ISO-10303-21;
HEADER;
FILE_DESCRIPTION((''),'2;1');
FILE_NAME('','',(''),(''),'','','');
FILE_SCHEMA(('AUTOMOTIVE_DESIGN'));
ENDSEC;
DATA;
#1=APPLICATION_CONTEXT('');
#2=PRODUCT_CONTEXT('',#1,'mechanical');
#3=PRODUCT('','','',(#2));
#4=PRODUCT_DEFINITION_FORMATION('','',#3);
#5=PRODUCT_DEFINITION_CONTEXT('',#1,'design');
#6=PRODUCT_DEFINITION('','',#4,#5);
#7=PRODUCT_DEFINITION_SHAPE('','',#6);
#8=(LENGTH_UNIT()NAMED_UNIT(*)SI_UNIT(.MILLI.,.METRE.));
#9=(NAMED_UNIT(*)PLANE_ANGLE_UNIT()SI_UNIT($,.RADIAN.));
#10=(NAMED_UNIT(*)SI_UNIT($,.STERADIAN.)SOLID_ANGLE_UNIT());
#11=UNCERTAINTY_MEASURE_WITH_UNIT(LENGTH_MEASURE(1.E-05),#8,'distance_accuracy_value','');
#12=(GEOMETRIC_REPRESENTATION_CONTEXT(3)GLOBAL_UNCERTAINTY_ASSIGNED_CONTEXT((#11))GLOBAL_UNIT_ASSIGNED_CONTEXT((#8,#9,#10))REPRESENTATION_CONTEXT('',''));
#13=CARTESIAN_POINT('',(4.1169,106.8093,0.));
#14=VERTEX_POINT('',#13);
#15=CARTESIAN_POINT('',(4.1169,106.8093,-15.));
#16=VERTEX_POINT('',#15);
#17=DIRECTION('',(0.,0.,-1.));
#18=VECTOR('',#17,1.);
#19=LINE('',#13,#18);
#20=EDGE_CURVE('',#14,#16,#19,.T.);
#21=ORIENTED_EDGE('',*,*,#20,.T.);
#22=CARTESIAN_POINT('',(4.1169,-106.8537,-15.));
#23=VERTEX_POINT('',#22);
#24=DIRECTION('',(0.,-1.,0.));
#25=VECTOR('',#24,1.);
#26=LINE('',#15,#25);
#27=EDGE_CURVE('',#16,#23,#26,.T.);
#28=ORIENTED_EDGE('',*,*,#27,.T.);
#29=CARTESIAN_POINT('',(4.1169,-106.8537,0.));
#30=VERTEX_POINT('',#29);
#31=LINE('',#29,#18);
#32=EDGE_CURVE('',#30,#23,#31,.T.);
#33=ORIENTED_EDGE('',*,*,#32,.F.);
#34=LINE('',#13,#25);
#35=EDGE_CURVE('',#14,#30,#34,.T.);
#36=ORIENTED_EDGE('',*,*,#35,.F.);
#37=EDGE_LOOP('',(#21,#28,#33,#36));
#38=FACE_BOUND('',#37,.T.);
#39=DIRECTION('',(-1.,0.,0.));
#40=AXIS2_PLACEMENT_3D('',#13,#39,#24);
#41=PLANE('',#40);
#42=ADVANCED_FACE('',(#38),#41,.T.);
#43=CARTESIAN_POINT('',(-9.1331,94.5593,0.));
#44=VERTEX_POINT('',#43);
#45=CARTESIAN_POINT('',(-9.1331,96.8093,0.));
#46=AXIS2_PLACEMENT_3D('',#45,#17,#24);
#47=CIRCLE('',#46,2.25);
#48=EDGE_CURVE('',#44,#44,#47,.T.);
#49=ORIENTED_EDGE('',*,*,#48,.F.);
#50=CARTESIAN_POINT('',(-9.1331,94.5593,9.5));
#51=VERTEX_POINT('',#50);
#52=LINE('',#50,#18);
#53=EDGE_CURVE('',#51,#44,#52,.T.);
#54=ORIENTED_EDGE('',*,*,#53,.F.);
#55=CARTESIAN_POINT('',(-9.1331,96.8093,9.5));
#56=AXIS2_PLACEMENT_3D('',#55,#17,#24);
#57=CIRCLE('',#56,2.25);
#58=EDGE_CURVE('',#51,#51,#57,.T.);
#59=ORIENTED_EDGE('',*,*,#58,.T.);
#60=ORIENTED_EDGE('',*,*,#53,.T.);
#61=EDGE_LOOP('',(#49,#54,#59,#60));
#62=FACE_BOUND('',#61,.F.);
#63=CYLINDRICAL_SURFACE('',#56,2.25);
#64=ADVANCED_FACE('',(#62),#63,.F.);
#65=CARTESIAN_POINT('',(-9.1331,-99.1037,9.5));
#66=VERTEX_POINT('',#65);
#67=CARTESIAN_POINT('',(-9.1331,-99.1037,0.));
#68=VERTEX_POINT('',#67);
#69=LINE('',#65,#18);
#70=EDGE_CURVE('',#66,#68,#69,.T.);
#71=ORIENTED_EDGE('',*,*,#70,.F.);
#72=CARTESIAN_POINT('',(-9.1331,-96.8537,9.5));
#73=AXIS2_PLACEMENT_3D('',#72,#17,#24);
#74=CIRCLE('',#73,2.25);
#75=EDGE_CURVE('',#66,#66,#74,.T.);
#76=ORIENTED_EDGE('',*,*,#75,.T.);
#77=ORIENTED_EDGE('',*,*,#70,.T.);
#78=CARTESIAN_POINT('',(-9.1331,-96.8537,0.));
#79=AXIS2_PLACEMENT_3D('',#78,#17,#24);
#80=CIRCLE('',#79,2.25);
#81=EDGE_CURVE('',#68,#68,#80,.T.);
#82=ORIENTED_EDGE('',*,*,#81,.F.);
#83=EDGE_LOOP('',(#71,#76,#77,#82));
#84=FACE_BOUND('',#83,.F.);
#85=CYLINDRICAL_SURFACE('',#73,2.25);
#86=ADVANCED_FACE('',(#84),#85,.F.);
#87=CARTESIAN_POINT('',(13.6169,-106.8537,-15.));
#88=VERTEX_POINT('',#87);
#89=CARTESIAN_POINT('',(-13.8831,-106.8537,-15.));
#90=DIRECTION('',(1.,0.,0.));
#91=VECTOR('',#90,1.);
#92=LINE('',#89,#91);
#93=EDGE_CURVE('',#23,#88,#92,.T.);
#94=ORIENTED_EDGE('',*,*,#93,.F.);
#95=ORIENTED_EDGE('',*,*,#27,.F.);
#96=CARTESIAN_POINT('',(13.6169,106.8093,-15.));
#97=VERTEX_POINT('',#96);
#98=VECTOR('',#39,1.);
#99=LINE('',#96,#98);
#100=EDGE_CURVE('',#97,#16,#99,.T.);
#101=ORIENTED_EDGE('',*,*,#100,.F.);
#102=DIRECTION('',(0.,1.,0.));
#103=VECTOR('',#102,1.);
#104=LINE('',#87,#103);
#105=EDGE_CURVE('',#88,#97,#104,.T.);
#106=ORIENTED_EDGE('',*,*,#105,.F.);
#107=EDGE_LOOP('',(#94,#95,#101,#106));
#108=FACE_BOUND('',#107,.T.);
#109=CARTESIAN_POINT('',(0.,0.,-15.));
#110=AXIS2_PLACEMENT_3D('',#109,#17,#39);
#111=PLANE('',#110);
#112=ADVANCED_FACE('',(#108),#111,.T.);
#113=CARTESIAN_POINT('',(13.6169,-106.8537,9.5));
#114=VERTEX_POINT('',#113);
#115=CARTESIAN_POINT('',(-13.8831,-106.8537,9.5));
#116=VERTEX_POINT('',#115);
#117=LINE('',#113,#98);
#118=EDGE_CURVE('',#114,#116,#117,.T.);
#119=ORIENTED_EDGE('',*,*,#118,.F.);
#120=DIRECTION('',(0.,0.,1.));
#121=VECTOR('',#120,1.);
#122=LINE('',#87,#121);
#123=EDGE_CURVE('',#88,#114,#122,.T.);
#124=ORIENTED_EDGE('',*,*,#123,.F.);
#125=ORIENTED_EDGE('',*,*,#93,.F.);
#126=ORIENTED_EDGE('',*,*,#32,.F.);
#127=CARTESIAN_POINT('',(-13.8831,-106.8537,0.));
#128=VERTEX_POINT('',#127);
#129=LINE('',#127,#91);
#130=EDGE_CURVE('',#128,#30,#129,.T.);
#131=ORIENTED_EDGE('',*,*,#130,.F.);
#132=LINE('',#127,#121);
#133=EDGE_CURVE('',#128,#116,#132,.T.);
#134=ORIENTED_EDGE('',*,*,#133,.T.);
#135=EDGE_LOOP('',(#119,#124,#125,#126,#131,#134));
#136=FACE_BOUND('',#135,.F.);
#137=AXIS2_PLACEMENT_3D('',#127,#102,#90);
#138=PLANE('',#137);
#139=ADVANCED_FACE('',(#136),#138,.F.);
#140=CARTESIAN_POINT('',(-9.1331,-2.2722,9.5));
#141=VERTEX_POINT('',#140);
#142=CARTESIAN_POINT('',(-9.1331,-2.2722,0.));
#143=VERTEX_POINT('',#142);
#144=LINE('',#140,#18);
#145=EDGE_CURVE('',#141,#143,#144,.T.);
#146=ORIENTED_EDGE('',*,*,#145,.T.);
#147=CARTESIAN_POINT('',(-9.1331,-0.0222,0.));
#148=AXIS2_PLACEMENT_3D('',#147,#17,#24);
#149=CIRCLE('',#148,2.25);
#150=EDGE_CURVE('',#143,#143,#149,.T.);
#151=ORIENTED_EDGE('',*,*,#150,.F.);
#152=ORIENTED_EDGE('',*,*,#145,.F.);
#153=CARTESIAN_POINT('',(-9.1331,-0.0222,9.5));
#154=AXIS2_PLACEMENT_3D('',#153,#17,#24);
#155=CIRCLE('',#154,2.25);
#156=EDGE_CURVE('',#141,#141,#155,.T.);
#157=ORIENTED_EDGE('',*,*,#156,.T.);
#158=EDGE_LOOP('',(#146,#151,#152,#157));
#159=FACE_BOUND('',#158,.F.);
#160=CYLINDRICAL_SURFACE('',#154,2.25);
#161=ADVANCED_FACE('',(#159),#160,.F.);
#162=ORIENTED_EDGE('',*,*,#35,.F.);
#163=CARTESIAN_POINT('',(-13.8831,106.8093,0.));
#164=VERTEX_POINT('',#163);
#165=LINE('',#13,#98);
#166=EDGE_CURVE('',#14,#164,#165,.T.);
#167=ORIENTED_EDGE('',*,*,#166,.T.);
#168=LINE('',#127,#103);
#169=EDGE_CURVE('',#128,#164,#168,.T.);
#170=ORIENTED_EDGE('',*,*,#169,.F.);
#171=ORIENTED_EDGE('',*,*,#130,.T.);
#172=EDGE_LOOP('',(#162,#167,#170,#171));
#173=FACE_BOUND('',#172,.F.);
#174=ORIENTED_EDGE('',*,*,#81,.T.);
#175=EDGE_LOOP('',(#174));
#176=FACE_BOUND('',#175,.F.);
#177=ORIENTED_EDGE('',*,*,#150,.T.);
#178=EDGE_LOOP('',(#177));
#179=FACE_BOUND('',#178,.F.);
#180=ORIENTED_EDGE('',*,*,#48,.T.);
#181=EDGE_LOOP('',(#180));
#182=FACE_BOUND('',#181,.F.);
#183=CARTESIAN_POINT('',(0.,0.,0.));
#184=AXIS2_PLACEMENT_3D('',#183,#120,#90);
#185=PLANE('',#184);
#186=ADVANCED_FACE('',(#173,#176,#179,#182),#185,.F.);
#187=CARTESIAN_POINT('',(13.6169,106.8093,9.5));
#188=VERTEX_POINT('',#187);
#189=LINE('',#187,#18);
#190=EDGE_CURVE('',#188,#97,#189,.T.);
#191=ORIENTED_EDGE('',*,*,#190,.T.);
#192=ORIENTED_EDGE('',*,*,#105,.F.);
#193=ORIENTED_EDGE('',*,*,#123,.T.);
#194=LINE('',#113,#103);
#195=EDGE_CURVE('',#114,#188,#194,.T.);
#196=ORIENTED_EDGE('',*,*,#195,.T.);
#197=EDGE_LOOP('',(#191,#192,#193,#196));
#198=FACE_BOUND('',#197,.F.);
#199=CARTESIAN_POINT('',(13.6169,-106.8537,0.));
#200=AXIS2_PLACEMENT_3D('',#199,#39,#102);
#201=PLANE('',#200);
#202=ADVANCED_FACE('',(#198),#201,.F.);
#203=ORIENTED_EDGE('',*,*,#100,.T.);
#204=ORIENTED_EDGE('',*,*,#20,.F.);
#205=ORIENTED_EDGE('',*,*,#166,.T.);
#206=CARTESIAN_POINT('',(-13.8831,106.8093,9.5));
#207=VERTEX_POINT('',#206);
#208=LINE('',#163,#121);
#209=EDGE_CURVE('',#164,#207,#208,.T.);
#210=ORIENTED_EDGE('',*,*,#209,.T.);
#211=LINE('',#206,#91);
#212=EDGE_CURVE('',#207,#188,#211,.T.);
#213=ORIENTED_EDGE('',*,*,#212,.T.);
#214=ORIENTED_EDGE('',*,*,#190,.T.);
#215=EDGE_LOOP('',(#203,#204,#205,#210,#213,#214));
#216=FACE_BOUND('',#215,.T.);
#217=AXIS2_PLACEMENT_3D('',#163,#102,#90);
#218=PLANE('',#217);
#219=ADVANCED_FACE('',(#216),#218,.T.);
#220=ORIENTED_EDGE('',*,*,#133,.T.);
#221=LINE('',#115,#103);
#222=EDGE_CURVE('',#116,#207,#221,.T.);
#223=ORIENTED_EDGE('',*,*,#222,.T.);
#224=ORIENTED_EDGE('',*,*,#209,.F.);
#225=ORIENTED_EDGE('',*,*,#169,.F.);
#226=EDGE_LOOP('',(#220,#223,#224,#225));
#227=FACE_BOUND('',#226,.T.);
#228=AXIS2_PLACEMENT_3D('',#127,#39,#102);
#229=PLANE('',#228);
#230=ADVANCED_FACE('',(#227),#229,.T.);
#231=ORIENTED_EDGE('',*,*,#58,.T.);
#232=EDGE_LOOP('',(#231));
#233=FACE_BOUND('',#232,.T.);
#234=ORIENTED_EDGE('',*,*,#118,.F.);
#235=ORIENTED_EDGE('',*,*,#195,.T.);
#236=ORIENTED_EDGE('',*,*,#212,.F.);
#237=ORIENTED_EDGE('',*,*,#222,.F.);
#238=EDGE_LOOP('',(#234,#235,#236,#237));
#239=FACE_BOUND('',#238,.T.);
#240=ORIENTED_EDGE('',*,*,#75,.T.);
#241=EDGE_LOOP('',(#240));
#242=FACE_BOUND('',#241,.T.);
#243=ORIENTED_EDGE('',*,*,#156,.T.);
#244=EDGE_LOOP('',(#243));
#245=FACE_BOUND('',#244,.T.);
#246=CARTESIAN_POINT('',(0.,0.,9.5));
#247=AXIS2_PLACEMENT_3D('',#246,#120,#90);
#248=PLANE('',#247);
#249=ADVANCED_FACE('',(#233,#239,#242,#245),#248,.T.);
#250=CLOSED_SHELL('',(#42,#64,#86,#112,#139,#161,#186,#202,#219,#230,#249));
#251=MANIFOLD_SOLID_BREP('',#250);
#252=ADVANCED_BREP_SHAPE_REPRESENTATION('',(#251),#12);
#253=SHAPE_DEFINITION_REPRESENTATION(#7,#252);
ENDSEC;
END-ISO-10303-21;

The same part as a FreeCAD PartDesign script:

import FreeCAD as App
import Part
import Sketcher

V = App.Vector
Q = App.Units.Quantity

doc = App.newDocument("Part")
body = doc.addObject("PartDesign::Body", "Body")

# Sketch on XY plane
sketch1 = body.newObject("Sketcher::SketchObject", "Sketch")
sketch1.AttachmentSupport = (doc.getObject("XY_Plane"), [""])
sketch1.MapMode = "FlatFace"
sketch1.addGeometry(Part.LineSegment(V(-13.9, 106.8, 0), V(-13.9, -106.9, 0)), False)
sketch1.addGeometry(Part.LineSegment(V(-13.9, -106.9, 0), V(13.6, -106.9, 0)), False)
sketch1.addGeometry(Part.LineSegment(V(13.6, -106.9, 0), V(13.6, 106.8, 0)), False)
sketch1.addGeometry(Part.LineSegment(V(13.6, 106.8, 0), V(-13.9, 106.8, 0)), False)
sketch1.addGeometry(Part.Circle(V(-9.1, -96.9, 0), V(0, 0, 1), 1.6), False)
sketch1.addGeometry(Part.Circle(V(-9.1, 0, 0), V(0, 0, 1), 1.6), False)
sketch1.addGeometry(Part.Circle(V(-9.1, 96.8, 0), V(0, 0, 1), 1.6), False)
sketch1.addConstraint(Sketcher.Constraint("Coincident", 0, 2, 1, 1))
sketch1.addConstraint(Sketcher.Constraint("Coincident", 1, 2, 2, 1))
sketch1.addConstraint(Sketcher.Constraint("Coincident", 2, 2, 3, 1))
sketch1.addConstraint(Sketcher.Constraint("Coincident", 3, 2, 0, 1))
sketch1.addConstraint(Sketcher.Constraint("Vertical", 0))
sketch1.addConstraint(Sketcher.Constraint("Horizontal", 1))
sketch1.addConstraint(Sketcher.Constraint("Vertical", 2))
sketch1.addConstraint(Sketcher.Constraint("Horizontal", 3))
sketch1.addConstraint(Sketcher.Constraint("Equal", 4, 5))
sketch1.addConstraint(Sketcher.Constraint("Equal", 5, 6))
sketch1.addConstraint(Sketcher.Constraint("Vertical", 4, 3, 5, 3))
sketch1.addConstraint(Sketcher.Constraint("Vertical", 5, 3, 6, 3))
sketch1.addConstraint(Sketcher.Constraint("DistanceY", 0, 2, 4, 3, Q("10 mm")))
sketch1.addConstraint(Sketcher.Constraint("DistanceY", 6, 3, 2, 2, Q("10 mm")))
sketch1.addConstraint(Sketcher.Constraint("Diameter", 4, Q("3.242 mm")))
sketch1.addConstraint(Sketcher.Constraint("DistanceX", 1, 1, 1, 2, Q("27.5 mm")))
sketch1.addConstraint(Sketcher.Constraint("DistanceY", 0, 2, 0, 1, Q("213.663 mm")))
sketch1.addConstraint(Sketcher.Constraint("DistanceX", 0, 2, 4, 3, Q("4.75 mm")))
sketch1.addConstraint(Sketcher.Constraint("DistanceX", 4, 3, -1, 1, Q("9.133 mm")))
sketch1.addConstraint(Sketcher.Constraint("DistanceY", 4, 3, -1, 1, Q("96.8537 mm")))
sketch1.addConstraint(Sketcher.Constraint("DistanceY", 5, 3, -1, 1, Q("0.0222 mm")))
pad1 = body.newObject("PartDesign::Pad", "Pad")
pad1.Profile = sketch1
pad1.Length = 9.5

# Sketch on XY plane
sketch2 = body.newObject("Sketcher::SketchObject", "Sketch001")
sketch2.AttachmentSupport = (doc.getObject("XY_Plane"), [""])
sketch2.MapMode = "FlatFace"
sketch2.addGeometry(Part.LineSegment(V(4, 107, 0), V(14, 107, 0)), False)
sketch2.addGeometry(Part.LineSegment(V(14, 107, 0), V(14, -107, 0)), False)
sketch2.addGeometry(Part.LineSegment(V(14, -107, 0), V(4, -107, 0)), False)
sketch2.addGeometry(Part.LineSegment(V(4, -107, 0), V(4, 107, 0)), False)
sketch2.addConstraint(Sketcher.Constraint("Coincident", 0, 2, 1, 1))
sketch2.addConstraint(Sketcher.Constraint("Coincident", 1, 2, 2, 1))
sketch2.addConstraint(Sketcher.Constraint("Coincident", 2, 2, 3, 1))
sketch2.addConstraint(Sketcher.Constraint("Coincident", 3, 2, 0, 1))
sketch2.addConstraint(Sketcher.Constraint("Horizontal", 0))
sketch2.addConstraint(Sketcher.Constraint("Vertical", 1))
sketch2.addConstraint(Sketcher.Constraint("Horizontal", 2))
sketch2.addConstraint(Sketcher.Constraint("Vertical", 3))
sketch2.addConstraint(Sketcher.Constraint("DistanceX", 0, 1, 0, 2, Q("9.5 mm")))
sketch2.addConstraint(Sketcher.Constraint("DistanceY", 1, 2, 1, 1, Q("213.663 mm")))
sketch2.addConstraint(Sketcher.Constraint("DistanceX", -1, 1, 0, 2, Q("13.617 mm")))
sketch2.addConstraint(Sketcher.Constraint("DistanceY", -1, 1, 0, 2, Q("106.8093 mm")))
pad2 = body.newObject("PartDesign::Pad", "Pad001")
pad2.Profile = sketch2
pad2.Length = 15
pad2.Reversed = True

# Sketch on XY plane
sketch3 = body.newObject("Sketcher::SketchObject", "Sketch002")
sketch3.AttachmentSupport = (doc.getObject("XY_Plane"), [""])
sketch3.MapMode = "FlatFace"
sketch3.AttachmentOffset = App.Placement(V(0, 0, 9.5), App.Rotation())
sketch3.addGeometry(Part.Circle(V(-9.1, -96.9, 0), V(0, 0, 1), 2.2), False)
sketch3.addGeometry(Part.Circle(V(-9.1, 0, 0), V(0, 0, 1), 2.2), False)
sketch3.addGeometry(Part.Circle(V(-9.1, 96.8, 0), V(0, 0, 1), 2.2), False)
sketch3.addConstraint(Sketcher.Constraint("Equal", 0, 1))
sketch3.addConstraint(Sketcher.Constraint("Equal", 1, 2))
sketch3.addConstraint(Sketcher.Constraint("Vertical", 0, 3, 1, 3))
sketch3.addConstraint(Sketcher.Constraint("Vertical", 1, 3, 2, 3))
sketch3.addConstraint(Sketcher.Constraint("Diameter", 0, Q("4.5 mm")))
sketch3.addConstraint(Sketcher.Constraint("DistanceX", 0, 3, -1, 1, Q("9.133 mm")))
sketch3.addConstraint(Sketcher.Constraint("DistanceY", 0, 3, 2, 3, Q("193.663 mm")))
sketch3.addConstraint(Sketcher.Constraint("DistanceY", 0, 3, -1, 1, Q("96.8537 mm")))
sketch3.addConstraint(Sketcher.Constraint("DistanceY", 1, 3, -1, 1, Q("0.0222 mm")))
doc.recompute()
hole = body.newObject("PartDesign::Hole", "Hole")
hole.Profile = sketch3
hole.ThreadType = "None"
hole.Diameter = 4.5
hole.DepthType = "ThroughAll"

doc.recompute()
